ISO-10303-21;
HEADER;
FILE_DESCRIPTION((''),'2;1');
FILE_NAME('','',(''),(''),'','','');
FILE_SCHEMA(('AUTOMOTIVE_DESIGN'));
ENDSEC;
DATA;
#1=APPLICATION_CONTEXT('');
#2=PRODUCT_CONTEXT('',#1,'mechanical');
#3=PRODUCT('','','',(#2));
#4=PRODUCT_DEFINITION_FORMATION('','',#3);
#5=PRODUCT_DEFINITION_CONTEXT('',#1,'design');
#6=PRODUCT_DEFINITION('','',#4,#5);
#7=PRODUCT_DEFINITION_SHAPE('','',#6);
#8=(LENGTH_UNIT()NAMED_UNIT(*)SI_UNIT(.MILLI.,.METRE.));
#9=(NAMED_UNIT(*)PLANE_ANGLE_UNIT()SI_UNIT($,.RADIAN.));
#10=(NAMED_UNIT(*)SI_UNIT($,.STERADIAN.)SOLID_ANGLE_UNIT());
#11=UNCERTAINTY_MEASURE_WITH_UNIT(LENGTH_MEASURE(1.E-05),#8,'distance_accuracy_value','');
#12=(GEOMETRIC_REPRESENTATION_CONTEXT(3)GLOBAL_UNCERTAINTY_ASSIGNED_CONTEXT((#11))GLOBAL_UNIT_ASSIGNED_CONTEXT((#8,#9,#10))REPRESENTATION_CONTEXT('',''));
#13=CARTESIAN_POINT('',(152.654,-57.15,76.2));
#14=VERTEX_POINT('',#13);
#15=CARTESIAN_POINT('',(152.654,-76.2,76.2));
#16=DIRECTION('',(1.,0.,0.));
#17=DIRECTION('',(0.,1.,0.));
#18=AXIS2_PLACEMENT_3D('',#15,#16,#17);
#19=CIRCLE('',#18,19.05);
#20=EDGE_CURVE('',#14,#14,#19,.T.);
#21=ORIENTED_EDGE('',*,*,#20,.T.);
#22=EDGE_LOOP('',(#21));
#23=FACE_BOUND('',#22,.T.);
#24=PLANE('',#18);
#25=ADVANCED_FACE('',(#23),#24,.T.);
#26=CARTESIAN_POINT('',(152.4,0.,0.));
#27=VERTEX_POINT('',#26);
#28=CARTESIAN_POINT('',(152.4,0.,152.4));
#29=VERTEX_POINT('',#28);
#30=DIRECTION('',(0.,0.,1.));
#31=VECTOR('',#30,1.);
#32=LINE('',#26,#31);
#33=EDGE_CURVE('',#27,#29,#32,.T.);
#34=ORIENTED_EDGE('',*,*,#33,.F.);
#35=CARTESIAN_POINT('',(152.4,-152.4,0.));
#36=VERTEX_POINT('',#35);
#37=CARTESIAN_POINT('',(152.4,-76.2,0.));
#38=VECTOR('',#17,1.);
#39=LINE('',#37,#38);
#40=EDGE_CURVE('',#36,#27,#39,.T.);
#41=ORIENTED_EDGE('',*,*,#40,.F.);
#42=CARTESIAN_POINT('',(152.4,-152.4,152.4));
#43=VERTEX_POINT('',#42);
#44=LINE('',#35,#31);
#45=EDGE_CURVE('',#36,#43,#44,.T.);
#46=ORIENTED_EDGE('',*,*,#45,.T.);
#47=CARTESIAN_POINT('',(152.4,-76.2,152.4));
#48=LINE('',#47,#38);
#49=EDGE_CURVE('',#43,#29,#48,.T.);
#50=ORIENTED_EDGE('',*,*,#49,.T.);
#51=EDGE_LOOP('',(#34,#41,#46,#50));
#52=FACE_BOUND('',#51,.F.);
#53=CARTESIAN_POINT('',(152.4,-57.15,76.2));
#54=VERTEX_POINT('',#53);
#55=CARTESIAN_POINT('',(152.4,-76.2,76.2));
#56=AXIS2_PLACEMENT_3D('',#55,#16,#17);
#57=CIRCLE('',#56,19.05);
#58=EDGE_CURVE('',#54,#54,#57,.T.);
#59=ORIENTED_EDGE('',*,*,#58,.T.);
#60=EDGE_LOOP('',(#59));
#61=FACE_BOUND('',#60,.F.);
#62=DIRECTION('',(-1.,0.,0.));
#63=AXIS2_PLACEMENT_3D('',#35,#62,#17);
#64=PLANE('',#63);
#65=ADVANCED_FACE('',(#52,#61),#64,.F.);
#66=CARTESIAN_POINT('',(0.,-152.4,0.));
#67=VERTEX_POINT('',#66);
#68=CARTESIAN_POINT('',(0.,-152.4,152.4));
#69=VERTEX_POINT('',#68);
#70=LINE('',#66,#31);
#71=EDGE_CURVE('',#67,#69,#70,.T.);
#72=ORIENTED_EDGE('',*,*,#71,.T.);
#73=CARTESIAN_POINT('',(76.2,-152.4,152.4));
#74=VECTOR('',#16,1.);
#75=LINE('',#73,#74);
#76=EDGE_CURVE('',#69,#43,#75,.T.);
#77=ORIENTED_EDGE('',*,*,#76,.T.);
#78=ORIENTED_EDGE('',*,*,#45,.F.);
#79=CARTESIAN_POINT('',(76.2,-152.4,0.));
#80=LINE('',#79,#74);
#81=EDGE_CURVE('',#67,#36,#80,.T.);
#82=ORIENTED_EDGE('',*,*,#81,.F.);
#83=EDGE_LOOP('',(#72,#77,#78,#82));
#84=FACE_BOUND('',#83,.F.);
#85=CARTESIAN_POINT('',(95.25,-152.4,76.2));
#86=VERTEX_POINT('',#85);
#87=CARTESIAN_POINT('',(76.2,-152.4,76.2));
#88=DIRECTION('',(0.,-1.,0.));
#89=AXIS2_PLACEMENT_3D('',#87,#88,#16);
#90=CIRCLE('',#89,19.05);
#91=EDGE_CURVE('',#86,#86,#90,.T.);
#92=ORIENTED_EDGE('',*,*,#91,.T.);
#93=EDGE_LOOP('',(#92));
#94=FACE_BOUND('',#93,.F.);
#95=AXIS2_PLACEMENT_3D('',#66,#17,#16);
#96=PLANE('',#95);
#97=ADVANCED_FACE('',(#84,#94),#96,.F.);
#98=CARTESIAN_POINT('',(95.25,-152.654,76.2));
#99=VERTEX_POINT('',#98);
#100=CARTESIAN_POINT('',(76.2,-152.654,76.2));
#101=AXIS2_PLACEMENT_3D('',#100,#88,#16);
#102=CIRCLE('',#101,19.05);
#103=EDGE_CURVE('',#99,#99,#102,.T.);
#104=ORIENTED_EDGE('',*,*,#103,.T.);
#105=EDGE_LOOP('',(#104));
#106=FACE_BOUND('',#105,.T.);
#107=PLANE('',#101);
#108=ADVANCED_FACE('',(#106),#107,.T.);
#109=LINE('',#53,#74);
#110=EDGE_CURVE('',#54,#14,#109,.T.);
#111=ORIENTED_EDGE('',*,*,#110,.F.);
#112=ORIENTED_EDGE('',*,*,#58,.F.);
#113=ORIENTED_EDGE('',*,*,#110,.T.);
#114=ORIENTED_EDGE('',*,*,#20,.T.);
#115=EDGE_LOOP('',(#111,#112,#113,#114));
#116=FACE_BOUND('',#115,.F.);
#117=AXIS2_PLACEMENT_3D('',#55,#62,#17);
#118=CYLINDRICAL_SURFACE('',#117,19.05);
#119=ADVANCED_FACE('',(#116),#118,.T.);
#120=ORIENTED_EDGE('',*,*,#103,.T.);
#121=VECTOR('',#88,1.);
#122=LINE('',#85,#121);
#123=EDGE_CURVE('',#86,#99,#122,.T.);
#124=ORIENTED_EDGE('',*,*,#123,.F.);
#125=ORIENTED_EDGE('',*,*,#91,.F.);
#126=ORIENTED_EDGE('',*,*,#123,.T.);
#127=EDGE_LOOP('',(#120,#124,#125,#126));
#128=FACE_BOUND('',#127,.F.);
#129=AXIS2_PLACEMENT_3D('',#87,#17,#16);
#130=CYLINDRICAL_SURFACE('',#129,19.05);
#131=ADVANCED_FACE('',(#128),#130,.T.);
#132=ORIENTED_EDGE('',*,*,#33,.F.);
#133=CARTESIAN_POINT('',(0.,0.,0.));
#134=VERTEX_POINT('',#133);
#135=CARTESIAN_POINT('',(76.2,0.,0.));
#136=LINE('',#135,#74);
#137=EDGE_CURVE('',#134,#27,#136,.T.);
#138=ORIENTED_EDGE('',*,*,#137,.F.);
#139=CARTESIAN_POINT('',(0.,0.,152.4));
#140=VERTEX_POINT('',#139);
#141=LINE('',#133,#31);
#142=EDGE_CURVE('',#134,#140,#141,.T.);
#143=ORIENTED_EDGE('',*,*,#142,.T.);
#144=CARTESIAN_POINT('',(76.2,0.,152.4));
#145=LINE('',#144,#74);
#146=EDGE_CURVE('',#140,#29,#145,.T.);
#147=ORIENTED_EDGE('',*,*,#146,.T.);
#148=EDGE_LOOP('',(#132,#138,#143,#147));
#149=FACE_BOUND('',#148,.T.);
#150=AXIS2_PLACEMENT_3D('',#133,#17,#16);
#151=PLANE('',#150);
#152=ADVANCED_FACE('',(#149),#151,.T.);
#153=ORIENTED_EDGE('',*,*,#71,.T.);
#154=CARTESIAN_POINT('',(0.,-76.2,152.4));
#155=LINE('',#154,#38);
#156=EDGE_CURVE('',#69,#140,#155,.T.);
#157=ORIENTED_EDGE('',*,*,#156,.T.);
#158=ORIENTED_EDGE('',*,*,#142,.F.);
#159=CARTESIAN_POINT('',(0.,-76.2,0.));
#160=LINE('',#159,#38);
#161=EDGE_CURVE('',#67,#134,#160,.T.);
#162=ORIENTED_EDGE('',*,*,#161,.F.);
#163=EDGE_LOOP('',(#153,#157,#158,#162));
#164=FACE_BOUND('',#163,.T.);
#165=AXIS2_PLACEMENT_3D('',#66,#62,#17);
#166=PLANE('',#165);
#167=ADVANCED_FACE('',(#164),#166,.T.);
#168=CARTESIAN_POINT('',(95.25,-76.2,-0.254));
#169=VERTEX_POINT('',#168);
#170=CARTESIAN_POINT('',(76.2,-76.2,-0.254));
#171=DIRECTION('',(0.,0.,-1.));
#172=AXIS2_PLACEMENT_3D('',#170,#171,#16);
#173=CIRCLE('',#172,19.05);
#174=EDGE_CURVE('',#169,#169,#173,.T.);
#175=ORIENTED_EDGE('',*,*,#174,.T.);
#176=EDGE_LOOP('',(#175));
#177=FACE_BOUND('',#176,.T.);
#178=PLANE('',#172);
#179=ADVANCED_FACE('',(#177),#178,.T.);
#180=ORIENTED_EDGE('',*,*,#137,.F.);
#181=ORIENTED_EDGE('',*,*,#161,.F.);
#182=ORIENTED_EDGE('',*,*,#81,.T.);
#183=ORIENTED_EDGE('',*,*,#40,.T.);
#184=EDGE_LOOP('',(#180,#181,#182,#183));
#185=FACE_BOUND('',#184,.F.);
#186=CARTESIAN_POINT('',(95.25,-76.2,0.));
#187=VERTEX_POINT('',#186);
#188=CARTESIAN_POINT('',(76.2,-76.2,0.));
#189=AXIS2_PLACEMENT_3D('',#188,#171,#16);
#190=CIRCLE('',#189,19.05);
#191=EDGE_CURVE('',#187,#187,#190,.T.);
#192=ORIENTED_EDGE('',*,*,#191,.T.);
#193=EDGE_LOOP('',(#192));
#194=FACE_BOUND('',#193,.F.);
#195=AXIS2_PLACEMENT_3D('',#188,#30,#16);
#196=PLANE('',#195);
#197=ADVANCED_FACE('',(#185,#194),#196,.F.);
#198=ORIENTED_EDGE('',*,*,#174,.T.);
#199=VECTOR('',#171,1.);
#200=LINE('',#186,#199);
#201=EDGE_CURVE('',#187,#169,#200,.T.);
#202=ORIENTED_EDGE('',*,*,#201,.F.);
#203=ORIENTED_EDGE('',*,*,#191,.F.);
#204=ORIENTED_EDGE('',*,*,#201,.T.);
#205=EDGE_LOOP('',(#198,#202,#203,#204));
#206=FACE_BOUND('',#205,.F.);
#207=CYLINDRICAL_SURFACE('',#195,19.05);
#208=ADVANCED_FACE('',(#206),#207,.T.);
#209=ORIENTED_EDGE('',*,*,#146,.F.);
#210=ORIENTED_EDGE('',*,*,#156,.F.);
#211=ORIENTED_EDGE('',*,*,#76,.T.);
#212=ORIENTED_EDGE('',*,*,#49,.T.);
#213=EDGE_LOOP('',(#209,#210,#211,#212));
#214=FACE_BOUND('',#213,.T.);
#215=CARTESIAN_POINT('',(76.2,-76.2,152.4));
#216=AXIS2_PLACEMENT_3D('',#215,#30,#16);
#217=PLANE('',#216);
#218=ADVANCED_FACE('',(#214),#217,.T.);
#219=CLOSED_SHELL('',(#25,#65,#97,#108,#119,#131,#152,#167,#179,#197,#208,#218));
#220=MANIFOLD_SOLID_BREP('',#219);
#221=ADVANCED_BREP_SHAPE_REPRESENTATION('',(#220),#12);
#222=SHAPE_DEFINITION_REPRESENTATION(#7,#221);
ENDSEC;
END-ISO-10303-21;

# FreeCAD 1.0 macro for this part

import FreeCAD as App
import Part
import Sketcher
from FreeCAD import Vector
Q = App.Units.Quantity


def add_polygon(sketch, points):
    """Adds a closed chain of lines whose ends are joined by coincident constraints."""
    first, n = sketch.GeometryCount, len(points)
    for a, b in zip(points, points[1:] + points[:1]):
        sketch.addGeometry(Part.LineSegment(App.Vector(*a, 0), App.Vector(*b, 0)), False)
    for i in range(n):
        sketch.addConstraint(Sketcher.Constraint("Coincident", first + i, 2, first + (i + 1) % n, 1))

doc = App.newDocument("Part")
body = doc.addObject("PartDesign::Body", "Body")

# Sketch on XY plane
sketch1 = body.newObject("Sketcher::SketchObject", "Sketch")
sketch1.AttachmentSupport = (doc.getObject("XY_Plane"), [""])
sketch1.MapMode = "FlatFace"
add_polygon(sketch1, [(0, 0), (0, -152.4), (152.4, -152.4), (152.4, 0)])  # lines 0-3
sketch1.addConstraint(Sketcher.Constraint("Vertical", 0))
sketch1.addConstraint(Sketcher.Constraint("Horizontal", 1))
sketch1.addConstraint(Sketcher.Constraint("Vertical", 2))
sketch1.addConstraint(Sketcher.Constraint("Horizontal", 3))
sketch1.addConstraint(Sketcher.Constraint("Coincident", 3, 2, -1, 1))
sketch1.addConstraint(Sketcher.Constraint("Equal", 3, 0))
sketch1.addConstraint(Sketcher.Constraint("DistanceX", 1, 1, 1, 2, Q("6 in")))
pad1 = body.newObject("PartDesign::Pad", "Pad")
pad1.Profile = sketch1
pad1.Length = Q("6 in")

# Sketch on XZ plane
sketch2 = body.newObject("Sketcher::SketchObject", "Sketch001")
sketch2.AttachmentSupport = (doc.getObject("XZ_Plane"), [""])
sketch2.MapMode = "FlatFace"
sketch2.AttachmentOffset = App.Placement(Vector(0, 0, 6 * 25.4), App.Rotation())
sketch2.addGeometry(Part.Circle(Vector(76.2, 76.2, 0), Vector(0, 0, 1), 19.05), False)
sketch2.addConstraint(Sketcher.Constraint("Diameter", 0, Q("1.5 in")))
sketch2.addConstraint(Sketcher.Constraint("DistanceX", -1, 1, 0, 3, Q("3 in")))
sketch2.addConstraint(Sketcher.Constraint("DistanceY", -1, 1, 0, 3, Q("3 in")))
pad2 = body.newObject("PartDesign::Pad", "Pad001")
pad2.Profile = sketch2
pad2.Length = Q("0.01 in")

# Sketch on YZ plane
sketch3 = body.newObject("Sketcher::SketchObject", "Sketch002")
sketch3.AttachmentSupport = (doc.getObject("YZ_Plane"), [""])
sketch3.MapMode = "FlatFace"
sketch3.AttachmentOffset = App.Placement(Vector(0, 0, 6 * 25.4), App.Rotation())
sketch3.addGeometry(Part.Circle(Vector(-76.2, 76.2, 0), Vector(0, 0, 1), 19.05), False)
sketch3.addConstraint(Sketcher.Constraint("Diameter", 0, Q("1.5 in")))
sketch3.addConstraint(Sketcher.Constraint("DistanceX", 0, 3, -1, 1, Q("3 in")))
sketch3.addConstraint(Sketcher.Constraint("DistanceY", -1, 1, 0, 3, Q("3 in")))
pad3 = body.newObject("PartDesign::Pad", "Pad002")
pad3.Profile = sketch3
pad3.Length = Q("0.01 in")

# Sketch on XY plane
sketch4 = body.newObject("Sketcher::SketchObject", "Sketch003")
sketch4.AttachmentSupport = (doc.getObject("XY_Plane"), [""])
sketch4.MapMode = "FlatFace"
sketch4.addGeometry(Part.Circle(Vector(76.2, -76.2, 0), Vector(0, 0, 1), 19.05), False)
sketch4.addConstraint(Sketcher.Constraint("Diameter", 0, Q("1.5 in")))
sketch4.addConstraint(Sketcher.Constraint("DistanceX", -1, 1, 0, 3, Q("3 in")))
sketch4.addConstraint(Sketcher.Constraint("DistanceY", 0, 3, -1, 1, Q("3 in")))
pad4 = body.newObject("PartDesign::Pad", "Pad003")
pad4.Profile = sketch4
pad4.Length = Q("0.01 in")
pad4.Reversed = True

doc.recompute()
